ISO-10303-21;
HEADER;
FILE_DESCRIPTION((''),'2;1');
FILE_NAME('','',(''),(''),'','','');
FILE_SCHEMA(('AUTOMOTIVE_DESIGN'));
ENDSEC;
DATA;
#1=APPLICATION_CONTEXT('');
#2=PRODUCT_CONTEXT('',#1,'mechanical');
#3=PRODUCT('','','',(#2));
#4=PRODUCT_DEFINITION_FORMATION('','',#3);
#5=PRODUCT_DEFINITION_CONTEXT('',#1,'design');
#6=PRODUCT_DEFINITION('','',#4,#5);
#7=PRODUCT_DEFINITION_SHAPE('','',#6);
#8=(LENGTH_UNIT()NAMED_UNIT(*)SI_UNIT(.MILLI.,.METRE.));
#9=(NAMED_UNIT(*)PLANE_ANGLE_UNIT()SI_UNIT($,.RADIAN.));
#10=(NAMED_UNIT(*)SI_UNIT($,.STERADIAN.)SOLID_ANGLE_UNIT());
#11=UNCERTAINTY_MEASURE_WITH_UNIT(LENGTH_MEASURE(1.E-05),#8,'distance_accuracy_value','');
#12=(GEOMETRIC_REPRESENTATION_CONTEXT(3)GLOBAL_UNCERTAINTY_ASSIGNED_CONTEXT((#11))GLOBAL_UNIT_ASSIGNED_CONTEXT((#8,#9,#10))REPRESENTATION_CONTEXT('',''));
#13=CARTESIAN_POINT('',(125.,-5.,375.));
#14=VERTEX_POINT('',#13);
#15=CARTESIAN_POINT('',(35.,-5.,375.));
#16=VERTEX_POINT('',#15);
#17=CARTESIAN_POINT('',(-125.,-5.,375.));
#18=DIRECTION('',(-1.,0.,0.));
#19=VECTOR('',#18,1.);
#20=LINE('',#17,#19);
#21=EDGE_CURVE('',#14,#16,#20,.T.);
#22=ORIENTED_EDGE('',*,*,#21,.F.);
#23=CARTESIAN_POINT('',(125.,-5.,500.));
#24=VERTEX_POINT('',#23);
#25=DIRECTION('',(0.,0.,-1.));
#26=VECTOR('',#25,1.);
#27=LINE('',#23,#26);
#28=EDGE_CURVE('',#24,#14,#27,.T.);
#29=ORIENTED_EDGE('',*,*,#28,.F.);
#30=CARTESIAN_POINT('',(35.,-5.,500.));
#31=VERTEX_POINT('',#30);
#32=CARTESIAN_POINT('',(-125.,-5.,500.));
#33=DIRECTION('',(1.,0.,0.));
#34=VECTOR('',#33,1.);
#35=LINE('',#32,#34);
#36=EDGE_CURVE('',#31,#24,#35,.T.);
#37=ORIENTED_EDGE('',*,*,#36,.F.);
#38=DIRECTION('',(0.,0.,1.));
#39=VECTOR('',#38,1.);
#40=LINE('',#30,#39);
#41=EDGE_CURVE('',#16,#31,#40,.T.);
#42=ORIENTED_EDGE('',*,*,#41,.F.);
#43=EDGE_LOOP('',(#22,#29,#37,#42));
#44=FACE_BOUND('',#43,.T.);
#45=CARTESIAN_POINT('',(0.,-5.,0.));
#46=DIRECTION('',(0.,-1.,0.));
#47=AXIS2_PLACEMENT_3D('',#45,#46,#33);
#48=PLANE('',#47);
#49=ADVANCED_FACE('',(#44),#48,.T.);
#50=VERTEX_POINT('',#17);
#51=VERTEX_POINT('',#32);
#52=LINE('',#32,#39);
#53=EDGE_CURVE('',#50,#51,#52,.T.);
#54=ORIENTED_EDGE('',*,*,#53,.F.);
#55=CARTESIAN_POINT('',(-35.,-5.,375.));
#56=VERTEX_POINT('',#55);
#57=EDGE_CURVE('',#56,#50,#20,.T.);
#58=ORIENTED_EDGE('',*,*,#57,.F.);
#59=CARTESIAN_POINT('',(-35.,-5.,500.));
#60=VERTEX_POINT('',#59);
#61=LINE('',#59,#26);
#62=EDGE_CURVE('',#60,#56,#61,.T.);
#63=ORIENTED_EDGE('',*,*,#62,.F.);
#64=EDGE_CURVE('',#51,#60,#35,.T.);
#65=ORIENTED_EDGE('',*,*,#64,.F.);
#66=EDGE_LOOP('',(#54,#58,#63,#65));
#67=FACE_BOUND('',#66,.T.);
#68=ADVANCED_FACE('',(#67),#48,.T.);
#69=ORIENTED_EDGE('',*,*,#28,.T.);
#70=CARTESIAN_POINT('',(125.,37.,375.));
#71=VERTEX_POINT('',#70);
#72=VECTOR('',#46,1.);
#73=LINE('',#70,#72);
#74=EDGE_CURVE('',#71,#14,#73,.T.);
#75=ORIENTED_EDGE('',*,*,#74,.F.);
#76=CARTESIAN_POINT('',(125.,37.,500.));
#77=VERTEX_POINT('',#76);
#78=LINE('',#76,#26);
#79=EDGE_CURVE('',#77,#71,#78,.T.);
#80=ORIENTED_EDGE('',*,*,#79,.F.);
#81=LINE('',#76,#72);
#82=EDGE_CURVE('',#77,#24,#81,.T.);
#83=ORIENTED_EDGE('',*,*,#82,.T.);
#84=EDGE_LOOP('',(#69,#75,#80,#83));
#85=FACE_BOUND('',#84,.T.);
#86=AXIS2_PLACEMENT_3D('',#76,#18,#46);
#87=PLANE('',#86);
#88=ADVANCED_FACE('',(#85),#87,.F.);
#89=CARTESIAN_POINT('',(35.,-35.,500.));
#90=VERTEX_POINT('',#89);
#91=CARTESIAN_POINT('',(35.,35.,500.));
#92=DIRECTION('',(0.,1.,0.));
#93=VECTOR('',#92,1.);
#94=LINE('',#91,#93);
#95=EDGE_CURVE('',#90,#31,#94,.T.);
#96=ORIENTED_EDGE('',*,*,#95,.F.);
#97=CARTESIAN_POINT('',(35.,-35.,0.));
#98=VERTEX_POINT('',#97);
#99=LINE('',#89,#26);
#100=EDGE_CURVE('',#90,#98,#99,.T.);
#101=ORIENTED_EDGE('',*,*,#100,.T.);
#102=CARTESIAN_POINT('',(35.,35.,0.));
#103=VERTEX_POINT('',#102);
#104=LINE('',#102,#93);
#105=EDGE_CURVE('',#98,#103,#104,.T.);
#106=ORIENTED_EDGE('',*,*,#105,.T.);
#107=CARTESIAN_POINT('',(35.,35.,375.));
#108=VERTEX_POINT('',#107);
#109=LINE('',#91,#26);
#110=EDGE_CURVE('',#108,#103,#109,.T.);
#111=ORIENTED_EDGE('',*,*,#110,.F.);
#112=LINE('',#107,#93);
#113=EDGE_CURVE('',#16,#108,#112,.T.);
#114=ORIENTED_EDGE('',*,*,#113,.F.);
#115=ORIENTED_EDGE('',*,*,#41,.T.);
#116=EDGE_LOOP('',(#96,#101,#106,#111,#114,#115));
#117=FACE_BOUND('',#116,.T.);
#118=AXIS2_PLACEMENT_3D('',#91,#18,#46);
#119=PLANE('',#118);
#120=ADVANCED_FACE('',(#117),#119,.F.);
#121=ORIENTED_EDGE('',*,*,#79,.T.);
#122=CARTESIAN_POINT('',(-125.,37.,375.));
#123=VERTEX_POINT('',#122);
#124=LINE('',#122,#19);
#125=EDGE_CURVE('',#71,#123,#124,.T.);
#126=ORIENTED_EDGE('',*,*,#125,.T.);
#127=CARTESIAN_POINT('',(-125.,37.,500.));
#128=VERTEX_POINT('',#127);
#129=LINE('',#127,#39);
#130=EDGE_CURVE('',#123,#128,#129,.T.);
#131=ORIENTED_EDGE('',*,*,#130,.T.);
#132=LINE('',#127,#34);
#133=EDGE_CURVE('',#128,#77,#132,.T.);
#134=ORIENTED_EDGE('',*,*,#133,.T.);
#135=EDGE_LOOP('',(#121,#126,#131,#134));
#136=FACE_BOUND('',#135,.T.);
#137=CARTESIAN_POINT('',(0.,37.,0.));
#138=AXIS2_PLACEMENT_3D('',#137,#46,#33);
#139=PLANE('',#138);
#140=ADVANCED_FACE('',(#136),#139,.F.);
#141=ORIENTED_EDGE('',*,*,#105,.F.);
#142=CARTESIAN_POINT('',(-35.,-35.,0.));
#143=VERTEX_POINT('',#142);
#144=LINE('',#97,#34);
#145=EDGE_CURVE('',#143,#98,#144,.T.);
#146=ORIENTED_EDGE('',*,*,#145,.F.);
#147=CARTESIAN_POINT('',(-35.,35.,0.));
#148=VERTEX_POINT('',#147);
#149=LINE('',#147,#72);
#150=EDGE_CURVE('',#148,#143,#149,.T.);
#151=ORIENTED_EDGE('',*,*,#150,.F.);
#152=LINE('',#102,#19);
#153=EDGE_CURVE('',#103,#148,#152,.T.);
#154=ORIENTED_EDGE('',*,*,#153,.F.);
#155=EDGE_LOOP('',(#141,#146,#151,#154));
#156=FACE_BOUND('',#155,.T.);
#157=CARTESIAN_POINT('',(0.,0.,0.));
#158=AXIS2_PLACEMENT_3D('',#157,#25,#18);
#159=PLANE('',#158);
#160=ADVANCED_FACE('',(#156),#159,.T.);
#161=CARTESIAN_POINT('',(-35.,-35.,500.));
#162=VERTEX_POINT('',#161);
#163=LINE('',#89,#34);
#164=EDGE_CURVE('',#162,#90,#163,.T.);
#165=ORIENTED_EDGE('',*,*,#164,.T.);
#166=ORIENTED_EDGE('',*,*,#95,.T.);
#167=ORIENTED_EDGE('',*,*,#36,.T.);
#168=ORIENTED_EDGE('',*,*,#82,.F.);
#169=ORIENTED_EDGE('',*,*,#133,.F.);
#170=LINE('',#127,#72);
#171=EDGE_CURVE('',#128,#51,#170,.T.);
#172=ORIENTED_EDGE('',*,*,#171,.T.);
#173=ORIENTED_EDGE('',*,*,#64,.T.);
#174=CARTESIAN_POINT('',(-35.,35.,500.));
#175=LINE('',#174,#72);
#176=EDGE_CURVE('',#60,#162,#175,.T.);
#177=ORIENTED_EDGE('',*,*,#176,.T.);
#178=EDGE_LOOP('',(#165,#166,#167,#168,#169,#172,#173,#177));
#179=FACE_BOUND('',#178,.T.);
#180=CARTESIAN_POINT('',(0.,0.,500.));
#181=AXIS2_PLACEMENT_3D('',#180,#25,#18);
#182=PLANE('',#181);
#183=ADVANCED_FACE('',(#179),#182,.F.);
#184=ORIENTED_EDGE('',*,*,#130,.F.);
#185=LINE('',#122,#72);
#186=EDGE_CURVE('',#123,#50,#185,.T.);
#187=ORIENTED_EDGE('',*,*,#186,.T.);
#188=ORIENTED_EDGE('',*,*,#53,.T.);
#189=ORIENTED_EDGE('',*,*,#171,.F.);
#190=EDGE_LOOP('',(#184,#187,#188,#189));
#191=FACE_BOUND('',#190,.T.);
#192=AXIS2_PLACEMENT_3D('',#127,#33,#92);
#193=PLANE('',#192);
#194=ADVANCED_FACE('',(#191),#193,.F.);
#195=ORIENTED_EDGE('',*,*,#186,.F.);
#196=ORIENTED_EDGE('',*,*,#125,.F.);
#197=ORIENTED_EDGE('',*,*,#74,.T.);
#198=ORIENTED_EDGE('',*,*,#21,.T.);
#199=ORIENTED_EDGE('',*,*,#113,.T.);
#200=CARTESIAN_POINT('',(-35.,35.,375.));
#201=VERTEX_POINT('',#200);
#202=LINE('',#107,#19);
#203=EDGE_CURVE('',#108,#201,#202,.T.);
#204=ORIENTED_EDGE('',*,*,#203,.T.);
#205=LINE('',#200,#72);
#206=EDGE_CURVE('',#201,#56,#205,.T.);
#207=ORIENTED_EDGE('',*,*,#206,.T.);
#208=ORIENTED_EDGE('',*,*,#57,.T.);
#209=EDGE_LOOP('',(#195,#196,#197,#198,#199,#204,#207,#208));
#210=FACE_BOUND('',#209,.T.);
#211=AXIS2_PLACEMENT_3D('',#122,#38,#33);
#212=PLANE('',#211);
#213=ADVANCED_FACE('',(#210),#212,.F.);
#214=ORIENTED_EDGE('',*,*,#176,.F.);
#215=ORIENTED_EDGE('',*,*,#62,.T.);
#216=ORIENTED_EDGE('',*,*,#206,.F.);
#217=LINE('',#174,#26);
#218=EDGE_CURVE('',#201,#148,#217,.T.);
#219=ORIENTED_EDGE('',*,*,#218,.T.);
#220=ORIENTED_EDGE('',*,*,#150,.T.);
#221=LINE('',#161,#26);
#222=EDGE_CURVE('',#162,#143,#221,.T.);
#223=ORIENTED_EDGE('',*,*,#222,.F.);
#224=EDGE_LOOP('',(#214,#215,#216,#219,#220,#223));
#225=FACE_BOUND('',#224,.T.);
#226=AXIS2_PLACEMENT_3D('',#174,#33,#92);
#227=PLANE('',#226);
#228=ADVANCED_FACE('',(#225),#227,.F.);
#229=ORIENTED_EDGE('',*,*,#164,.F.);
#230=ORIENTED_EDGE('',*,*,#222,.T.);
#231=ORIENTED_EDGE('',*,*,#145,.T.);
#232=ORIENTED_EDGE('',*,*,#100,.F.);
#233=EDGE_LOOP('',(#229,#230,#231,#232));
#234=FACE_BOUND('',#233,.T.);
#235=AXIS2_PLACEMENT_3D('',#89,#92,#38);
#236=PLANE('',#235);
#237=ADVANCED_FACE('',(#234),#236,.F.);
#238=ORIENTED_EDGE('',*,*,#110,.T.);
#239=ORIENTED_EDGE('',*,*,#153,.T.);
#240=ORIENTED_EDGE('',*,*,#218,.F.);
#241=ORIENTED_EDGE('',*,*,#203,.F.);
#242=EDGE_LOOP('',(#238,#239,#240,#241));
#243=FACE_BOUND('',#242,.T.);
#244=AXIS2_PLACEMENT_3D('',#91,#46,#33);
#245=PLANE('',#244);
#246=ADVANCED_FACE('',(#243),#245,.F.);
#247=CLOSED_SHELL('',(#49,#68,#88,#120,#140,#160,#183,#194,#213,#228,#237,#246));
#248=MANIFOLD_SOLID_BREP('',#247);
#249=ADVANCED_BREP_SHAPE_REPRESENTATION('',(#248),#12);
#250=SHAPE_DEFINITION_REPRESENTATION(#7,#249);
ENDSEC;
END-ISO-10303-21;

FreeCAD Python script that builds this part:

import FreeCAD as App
import Part
import Sketcher
from FreeCAD import Vector

doc = App.newDocument("Part")
body = doc.addObject("PartDesign::Body", "Body")

# Sketch on XY plane
sketch1 = body.newObject("Sketcher::SketchObject", "Sketch")
sketch1.AttachmentSupport = (doc.getObject("XY_Plane"), [""])
sketch1.MapMode = "FlatFace"
sketch1.addGeometry([
    Part.LineSegment(Vector(-35, 35, 0), Vector(-35, -35, 0)),
    Part.LineSegment(Vector(-35, -35, 0), Vector(35, -35, 0)),
    Part.LineSegment(Vector(35, -35, 0), Vector(35, 35, 0)),
    Part.LineSegment(Vector(35, 35, 0), Vector(-35, 35, 0)),
], False)
sketch1.addConstraint([
    Sketcher.Constraint("Coincident", 0, 2, 1, 1),
    Sketcher.Constraint("Coincident", 1, 2, 2, 1),
    Sketcher.Constraint("Coincident", 2, 2, 3, 1),
    Sketcher.Constraint("Coincident", 3, 2, 0, 1),
    Sketcher.Constraint("Vertical", 0),
    Sketcher.Constraint("Horizontal", 1),
    Sketcher.Constraint("Vertical", 2),
    Sketcher.Constraint("Horizontal", 3),
    Sketcher.Constraint("Symmetric", 0, 2, 2, 2, -1, 1),
    Sketcher.Constraint("Equal", 3, 0),
    Sketcher.Constraint("DistanceX", 1, 1, 1, 2, 70.0),
])
pad1 = body.newObject("PartDesign::Pad", "Pad")
pad1.Profile = sketch1
pad1.Length = 500

# Sketch on XZ plane
sketch2 = body.newObject("Sketcher::SketchObject", "Sketch001")
sketch2.AttachmentSupport = (doc.getObject("XZ_Plane"), [""])
sketch2.MapMode = "FlatFace"
sketch2.AttachmentOffset = App.Placement(Vector(0, 0, -35), App.Rotation())
sketch2.addGeometry([
    Part.LineSegment(Vector(-125, 375, 0), Vector(-125, 500, 0)),
    Part.LineSegment(Vector(-125, 500, 0), Vector(125, 500, 0)),
    Part.LineSegment(Vector(125, 500, 0), Vector(125, 375, 0)),
    Part.LineSegment(Vector(125, 375, 0), Vector(-125, 375, 0)),
], False)
sketch2.addConstraint([
    Sketcher.Constraint("Coincident", 0, 2, 1, 1),
    Sketcher.Constraint("Coincident", 1, 2, 2, 1),
    Sketcher.Constraint("Coincident", 2, 2, 3, 1),
    Sketcher.Constraint("Coincident", 3, 2, 0, 1),
    Sketcher.Constraint("Vertical", 0),
    Sketcher.Constraint("Horizontal", 1),
    Sketcher.Constraint("Vertical", 2),
    Sketcher.Constraint("Horizontal", 3),
    Sketcher.Constraint("DistanceX", 1, 1, 1, 2, 250.0),
    Sketcher.Constraint("DistanceY", 0, 1, 0, 2, 125.0),
    Sketcher.Constraint("DistanceX", 0, 2, -1, 1, 125.0),
    Sketcher.Constraint("DistanceY", -1, 1, 0, 2, 500.0),
])
pad2 = body.newObject("PartDesign::Pad", "Pad001")
pad2.Profile = sketch2
pad2.Type = "TwoLengths"
pad2.Length = 2
pad2.Length2 = 40
pad2.Reversed = True

doc.recompute()
